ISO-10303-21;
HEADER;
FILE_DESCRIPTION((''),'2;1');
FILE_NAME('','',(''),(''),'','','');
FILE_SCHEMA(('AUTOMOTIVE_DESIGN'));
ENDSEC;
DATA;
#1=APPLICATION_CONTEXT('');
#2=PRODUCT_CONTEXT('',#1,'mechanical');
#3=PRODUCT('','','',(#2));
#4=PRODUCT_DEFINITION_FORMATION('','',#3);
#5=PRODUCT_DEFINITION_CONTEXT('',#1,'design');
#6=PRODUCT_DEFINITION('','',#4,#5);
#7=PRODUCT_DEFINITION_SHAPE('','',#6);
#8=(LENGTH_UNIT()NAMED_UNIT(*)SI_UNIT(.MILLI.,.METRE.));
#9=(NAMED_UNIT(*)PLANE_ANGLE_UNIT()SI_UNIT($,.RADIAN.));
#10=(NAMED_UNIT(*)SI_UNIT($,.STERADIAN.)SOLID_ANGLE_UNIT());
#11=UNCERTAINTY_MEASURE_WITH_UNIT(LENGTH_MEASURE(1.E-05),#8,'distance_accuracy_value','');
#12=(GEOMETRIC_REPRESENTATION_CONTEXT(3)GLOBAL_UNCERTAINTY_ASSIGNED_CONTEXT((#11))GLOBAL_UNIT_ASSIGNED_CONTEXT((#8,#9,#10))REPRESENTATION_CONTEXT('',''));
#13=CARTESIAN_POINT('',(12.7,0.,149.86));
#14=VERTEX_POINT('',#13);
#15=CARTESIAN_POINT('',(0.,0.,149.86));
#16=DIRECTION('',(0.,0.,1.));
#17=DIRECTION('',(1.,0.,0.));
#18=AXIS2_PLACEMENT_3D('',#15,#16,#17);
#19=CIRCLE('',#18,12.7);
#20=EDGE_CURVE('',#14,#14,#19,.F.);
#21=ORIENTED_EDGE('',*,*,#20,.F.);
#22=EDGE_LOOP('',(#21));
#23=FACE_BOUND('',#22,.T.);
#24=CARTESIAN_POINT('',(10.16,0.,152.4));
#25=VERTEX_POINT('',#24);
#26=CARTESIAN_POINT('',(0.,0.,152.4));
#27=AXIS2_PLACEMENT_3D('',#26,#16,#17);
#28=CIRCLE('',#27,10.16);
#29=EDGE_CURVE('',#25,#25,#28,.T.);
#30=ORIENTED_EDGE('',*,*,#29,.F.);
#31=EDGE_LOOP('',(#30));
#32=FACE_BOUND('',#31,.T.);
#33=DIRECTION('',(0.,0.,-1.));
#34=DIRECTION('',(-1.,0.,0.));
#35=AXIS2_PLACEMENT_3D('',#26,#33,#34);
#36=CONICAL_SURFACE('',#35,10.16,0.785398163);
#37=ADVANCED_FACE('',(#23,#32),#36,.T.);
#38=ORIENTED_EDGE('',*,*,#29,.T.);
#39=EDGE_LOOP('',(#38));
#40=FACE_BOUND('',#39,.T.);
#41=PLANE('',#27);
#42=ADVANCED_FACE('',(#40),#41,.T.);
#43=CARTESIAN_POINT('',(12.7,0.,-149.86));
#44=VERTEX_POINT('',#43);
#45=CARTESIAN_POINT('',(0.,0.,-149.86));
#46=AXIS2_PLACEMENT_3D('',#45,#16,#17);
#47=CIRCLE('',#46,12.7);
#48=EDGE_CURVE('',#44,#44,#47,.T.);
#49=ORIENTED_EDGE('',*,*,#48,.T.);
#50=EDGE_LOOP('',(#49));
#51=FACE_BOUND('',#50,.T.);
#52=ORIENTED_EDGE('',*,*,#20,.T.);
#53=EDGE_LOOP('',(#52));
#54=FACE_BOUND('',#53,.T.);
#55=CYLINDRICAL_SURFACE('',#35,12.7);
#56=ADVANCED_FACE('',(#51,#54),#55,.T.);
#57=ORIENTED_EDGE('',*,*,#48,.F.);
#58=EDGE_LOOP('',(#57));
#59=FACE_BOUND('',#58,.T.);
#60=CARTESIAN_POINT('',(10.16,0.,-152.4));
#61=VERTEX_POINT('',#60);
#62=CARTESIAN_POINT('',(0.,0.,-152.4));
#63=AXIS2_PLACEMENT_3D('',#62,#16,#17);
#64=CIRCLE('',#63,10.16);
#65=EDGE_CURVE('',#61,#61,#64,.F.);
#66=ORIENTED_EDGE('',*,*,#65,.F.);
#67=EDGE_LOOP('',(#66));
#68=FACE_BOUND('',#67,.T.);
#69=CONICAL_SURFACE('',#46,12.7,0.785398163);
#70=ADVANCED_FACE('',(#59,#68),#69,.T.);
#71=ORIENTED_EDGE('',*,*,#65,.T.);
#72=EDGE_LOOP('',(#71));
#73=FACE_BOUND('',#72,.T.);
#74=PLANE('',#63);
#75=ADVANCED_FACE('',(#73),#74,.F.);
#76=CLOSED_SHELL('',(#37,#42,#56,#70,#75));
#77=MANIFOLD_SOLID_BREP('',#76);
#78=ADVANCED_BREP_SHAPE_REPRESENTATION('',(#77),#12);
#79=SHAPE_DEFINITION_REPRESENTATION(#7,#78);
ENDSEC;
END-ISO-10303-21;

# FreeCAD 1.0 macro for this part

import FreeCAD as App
import Part
import Sketcher
from FreeCAD import Vector
Q = App.Units.Quantity


def edges_at(feature, points):
    """Names of the edges that pass closest to the given points."""
    edges = feature.Shape.Edges
    near = lambda p: min(range(len(edges)), key=lambda i: edges[i].distToShape(Part.Vertex(*p))[0])
    return sorted({f"Edge{near(p) + 1}" for p in points})

doc = App.newDocument("Part")
body = doc.addObject("PartDesign::Body", "Body")

# Sketch on XY plane
sketch1 = doc.addObject("Sketcher::SketchObject", "Sketch")
body.addObject(sketch1)
sketch1.AttachmentSupport = (doc.XY_Plane, [""])
sketch1.MapMode = "FlatFace"
sketch1.addGeometry(Part.Circle(Vector(0, 0, 0), Vector(0, 0, 1), 13), False)
sketch1.addConstraint([
    Sketcher.Constraint("Coincident", 0, 3, -1, 1),
    Sketcher.Constraint("Diameter", 0, Q("1 in")),
])
pad1 = doc.addObject("PartDesign::Pad", "Pad")
body.addObject(pad1)
pad1.Profile = sketch1
pad1.Length = Q("12 in")
pad1.Midplane = True
doc.recompute()

chamfer = doc.addObject("PartDesign::Chamfer", "Chamfer")
body.addObject(chamfer)
chamfer.Base = (pad1, edges_at(pad1, [(-12.7, 0, -152.4), (-12.7, 0, 152.4)]))
chamfer.Size = Q("0.1 in")

doc.recompute()
